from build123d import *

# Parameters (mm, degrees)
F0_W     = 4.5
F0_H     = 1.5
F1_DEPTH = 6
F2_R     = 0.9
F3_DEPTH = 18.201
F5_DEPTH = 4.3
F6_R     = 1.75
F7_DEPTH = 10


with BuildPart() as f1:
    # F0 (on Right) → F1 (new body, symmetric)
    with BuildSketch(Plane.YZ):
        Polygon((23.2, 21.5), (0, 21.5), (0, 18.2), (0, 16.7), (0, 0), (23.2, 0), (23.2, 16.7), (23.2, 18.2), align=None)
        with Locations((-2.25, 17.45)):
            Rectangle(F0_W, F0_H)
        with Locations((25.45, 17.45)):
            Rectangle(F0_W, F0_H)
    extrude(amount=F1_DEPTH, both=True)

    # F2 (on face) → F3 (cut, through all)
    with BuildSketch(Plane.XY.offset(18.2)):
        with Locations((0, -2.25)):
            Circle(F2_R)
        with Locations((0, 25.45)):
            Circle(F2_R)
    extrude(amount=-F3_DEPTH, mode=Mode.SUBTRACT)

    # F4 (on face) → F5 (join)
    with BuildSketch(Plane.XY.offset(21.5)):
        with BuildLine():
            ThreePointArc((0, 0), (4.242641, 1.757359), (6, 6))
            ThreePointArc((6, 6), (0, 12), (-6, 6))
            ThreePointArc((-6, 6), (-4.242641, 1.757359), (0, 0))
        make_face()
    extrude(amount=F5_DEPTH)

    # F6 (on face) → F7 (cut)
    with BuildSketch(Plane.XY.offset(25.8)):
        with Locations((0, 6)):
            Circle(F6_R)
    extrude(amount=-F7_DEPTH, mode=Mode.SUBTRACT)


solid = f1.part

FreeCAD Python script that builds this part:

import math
import FreeCAD as App
import Part
import Sketcher

V = App.Vector

doc = App.newDocument("Part")
body = doc.addObject("PartDesign::Body", "Body")

sketch1 = body.newObject("Sketcher::SketchObject", "Sketch")
sketch1.AttachmentSupport = (doc.getObject("YZ_Plane"), [""])
sketch1.MapMode = "FlatFace"
sketch1.addGeometry(Part.LineSegment(V(23.2, 21.5, 0), V(0, 21.5, 0)), False)
sketch1.addGeometry(Part.LineSegment(V(0, 21.5, 0), V(0, 18.2, 0)), False)
sketch1.addGeometry(Part.LineSegment(V(0, 18.2, 0), V(-4.5, 18.2, 0)), False)
sketch1.addGeometry(Part.LineSegment(V(-4.5, 18.2, 0), V(-4.5, 16.7, 0)), False)
sketch1.addGeometry(Part.LineSegment(V(-4.5, 16.7, 0), V(0, 16.7, 0)), False)
sketch1.addGeometry(Part.LineSegment(V(0, 16.7, 0), V(0, 0, 0)), False)
sketch1.addGeometry(Part.LineSegment(V(0, 0, 0), V(23.2, 0, 0)), False)
sketch1.addGeometry(Part.LineSegment(V(23.2, 0, 0), V(23.2, 16.7, 0)), False)
sketch1.addGeometry(Part.LineSegment(V(23.2, 16.7, 0), V(27.7, 16.7, 0)), False)
sketch1.addGeometry(Part.LineSegment(V(27.7, 16.7, 0), V(27.7, 18.2, 0)), False)
sketch1.addGeometry(Part.LineSegment(V(27.7, 18.2, 0), V(23.2, 18.2, 0)), False)
sketch1.addGeometry(Part.LineSegment(V(23.2, 18.2, 0), V(23.2, 21.5, 0)), False)
sketch1.addConstraint(Sketcher.Constraint("Coincident", 0, 2, 1, 1))
sketch1.addConstraint(Sketcher.Constraint("Coincident", 1, 2, 2, 1))
sketch1.addConstraint(Sketcher.Constraint("Coincident", 2, 2, 3, 1))
sketch1.addConstraint(Sketcher.Constraint("Coincident", 3, 2, 4, 1))
sketch1.addConstraint(Sketcher.Constraint("Coincident", 4, 2, 5, 1))
sketch1.addConstraint(Sketcher.Constraint("Coincident", 5, 2, 6, 1))
sketch1.addConstraint(Sketcher.Constraint("Coincident", 6, 2, 7, 1))
sketch1.addConstraint(Sketcher.Constraint("Coincident", 7, 2, 8, 1))
sketch1.addConstraint(Sketcher.Constraint("Coincident", 8, 2, 9, 1))
sketch1.addConstraint(Sketcher.Constraint("Coincident", 9, 2, 10, 1))
sketch1.addConstraint(Sketcher.Constraint("Coincident", 10, 2, 11, 1))
sketch1.addConstraint(Sketcher.Constraint("Coincident", 11, 2, 0, 1))
sketch1.addConstraint(Sketcher.Constraint("Horizontal", 0))
sketch1.addConstraint(Sketcher.Constraint("Vertical", 1))
sketch1.addConstraint(Sketcher.Constraint("Horizontal", 2))
sketch1.addConstraint(Sketcher.Constraint("Vertical", 3))
sketch1.addConstraint(Sketcher.Constraint("Horizontal", 4))
sketch1.addConstraint(Sketcher.Constraint("Vertical", 5))
sketch1.addConstraint(Sketcher.Constraint("Horizontal", 6))
sketch1.addConstraint(Sketcher.Constraint("Vertical", 7))
sketch1.addConstraint(Sketcher.Constraint("Horizontal", 8))
sketch1.addConstraint(Sketcher.Constraint("Vertical", 9))
sketch1.addConstraint(Sketcher.Constraint("Horizontal", 10))
sketch1.addConstraint(Sketcher.Constraint("Vertical", 11))
sketch1.addConstraint(Sketcher.Constraint("Coincident", 5, 2, -1, 1))
sketch1.addConstraint(Sketcher.Constraint("PointOnObject", 0, 2, -2))
sketch1.addConstraint(Sketcher.Constraint("Horizontal", 4, 2, 7, 2))
sketch1.addConstraint(Sketcher.Constraint("Horizontal", 2, 2, 9, 2))
sketch1.addConstraint(Sketcher.Constraint("Vertical", 7, 2, 10, 2))
sketch1.addConstraint(Sketcher.Constraint("Equal", 4, 8))
sketch1.addConstraint(Sketcher.Constraint("DistanceX", 0, 2, 0, 1, 23.2))
sketch1.addConstraint(Sketcher.Constraint("DistanceX", 2, 2, 2, 1, 4.5))
sketch1.addConstraint(Sketcher.Constraint("DistanceY", 1, 2, 1, 1, 3.3))
sketch1.addConstraint(Sketcher.Constraint("DistanceY", 3, 2, 3, 1, 1.5))
sketch1.addConstraint(Sketcher.Constraint("DistanceY", 5, 2, 5, 1, 16.7))
pad1 = body.newObject("PartDesign::Pad", "Pad")
pad1.Profile = sketch1
pad1.Length = 12
pad1.Midplane = True

sketch2 = body.newObject("Sketcher::SketchObject", "Sketch001")
sketch2.AttachmentSupport = (doc.getObject("XY_Plane"), [""])
sketch2.MapMode = "FlatFace"
sketch2.AttachmentOffset = App.Placement(V(0, 0, 18.2), App.Rotation())
sketch2.addGeometry(Part.Circle(V(0, -2.2, 0), V(0, 0, 1), 0.9), False)
sketch2.addGeometry(Part.Circle(V(0, 25.4, 0), V(0, 0, 1), 0.9), False)
sketch2.addConstraint(Sketcher.Constraint("Equal", 0, 1))
sketch2.addConstraint(Sketcher.Constraint("PointOnObject", 0, 3, -2))
sketch2.addConstraint(Sketcher.Constraint("PointOnObject", 1, 3, -2))
sketch2.addConstraint(Sketcher.Constraint("Diameter", 0, 1.8))
sketch2.addConstraint(Sketcher.Constraint("DistanceY", 0, 3, 1, 3, 27.7))
sketch2.addConstraint(Sketcher.Constraint("DistanceY", 0, 3, -1, 1, 2.25))
pocket1 = body.newObject("PartDesign::Pocket", "Pocket")
pocket1.Profile = sketch2
pocket1.Type = "ThroughAll"

sketch3 = body.newObject("Sketcher::SketchObject", "Sketch002")
sketch3.AttachmentSupport = (doc.getObject("XY_Plane"), [""])
sketch3.MapMode = "FlatFace"
sketch3.AttachmentOffset = App.Placement(V(0, 0, 21.5), App.Rotation())
sketch3.addGeometry(Part.ArcOfCircle(Part.Circle(V(0, 6, 0), V(0, 0, 1), 6), math.radians(-90), math.radians(0)), False)
sketch3.addGeometry(Part.ArcOfCircle(Part.Circle(V(0, 6, 0), V(0, 0, 1), 6), math.radians(0), math.radians(180)), False)
sketch3.addGeometry(Part.ArcOfCircle(Part.Circle(V(0, 6, 0), V(0, 0, 1), 6), math.radians(180), math.radians(270)), False)
sketch3.addConstraint(Sketcher.Constraint("Tangent", 0, 2, 1, 1))
sketch3.addConstraint(Sketcher.Constraint("Tangent", 1, 2, 2, 1))
sketch3.addConstraint(Sketcher.Constraint("Tangent", 2, 2, 0, 1))
sketch3.addConstraint(Sketcher.Constraint("Coincident", 2, 2, -1, 1))
sketch3.addConstraint(Sketcher.Constraint("Symmetric", 0, 2, 1, 2, -2))
sketch3.addConstraint(Sketcher.Constraint("Horizontal", 2, 3, 0, 2))
sketch3.addConstraint(Sketcher.Constraint("Radius", 0, 5.999999))
pad2 = body.newObject("PartDesign::Pad", "Pad001")
pad2.Profile = sketch3
pad2.Length = 4.3

sketch4 = body.newObject("Sketcher::SketchObject", "Sketch003")
sketch4.AttachmentSupport = (doc.getObject("XY_Plane"), [""])
sketch4.MapMode = "FlatFace"
sketch4.AttachmentOffset = App.Placement(V(0, 0, 25.8), App.Rotation())
sketch4.addGeometry(Part.Circle(V(0, 6, 0), V(0, 0, 1), 1.8), False)
sketch4.addConstraint(Sketcher.Constraint("PointOnObject", 0, 3, -2))
sketch4.addConstraint(Sketcher.Constraint("Diameter", 0, 3.5))
sketch4.addConstraint(Sketcher.Constraint("DistanceY", -1, 1, 0, 3, 6.0))
pocket2 = body.newObject("PartDesign::Pocket", "Pocket001")
pocket2.Profile = sketch4
pocket2.Length = 10

doc.recompute()
